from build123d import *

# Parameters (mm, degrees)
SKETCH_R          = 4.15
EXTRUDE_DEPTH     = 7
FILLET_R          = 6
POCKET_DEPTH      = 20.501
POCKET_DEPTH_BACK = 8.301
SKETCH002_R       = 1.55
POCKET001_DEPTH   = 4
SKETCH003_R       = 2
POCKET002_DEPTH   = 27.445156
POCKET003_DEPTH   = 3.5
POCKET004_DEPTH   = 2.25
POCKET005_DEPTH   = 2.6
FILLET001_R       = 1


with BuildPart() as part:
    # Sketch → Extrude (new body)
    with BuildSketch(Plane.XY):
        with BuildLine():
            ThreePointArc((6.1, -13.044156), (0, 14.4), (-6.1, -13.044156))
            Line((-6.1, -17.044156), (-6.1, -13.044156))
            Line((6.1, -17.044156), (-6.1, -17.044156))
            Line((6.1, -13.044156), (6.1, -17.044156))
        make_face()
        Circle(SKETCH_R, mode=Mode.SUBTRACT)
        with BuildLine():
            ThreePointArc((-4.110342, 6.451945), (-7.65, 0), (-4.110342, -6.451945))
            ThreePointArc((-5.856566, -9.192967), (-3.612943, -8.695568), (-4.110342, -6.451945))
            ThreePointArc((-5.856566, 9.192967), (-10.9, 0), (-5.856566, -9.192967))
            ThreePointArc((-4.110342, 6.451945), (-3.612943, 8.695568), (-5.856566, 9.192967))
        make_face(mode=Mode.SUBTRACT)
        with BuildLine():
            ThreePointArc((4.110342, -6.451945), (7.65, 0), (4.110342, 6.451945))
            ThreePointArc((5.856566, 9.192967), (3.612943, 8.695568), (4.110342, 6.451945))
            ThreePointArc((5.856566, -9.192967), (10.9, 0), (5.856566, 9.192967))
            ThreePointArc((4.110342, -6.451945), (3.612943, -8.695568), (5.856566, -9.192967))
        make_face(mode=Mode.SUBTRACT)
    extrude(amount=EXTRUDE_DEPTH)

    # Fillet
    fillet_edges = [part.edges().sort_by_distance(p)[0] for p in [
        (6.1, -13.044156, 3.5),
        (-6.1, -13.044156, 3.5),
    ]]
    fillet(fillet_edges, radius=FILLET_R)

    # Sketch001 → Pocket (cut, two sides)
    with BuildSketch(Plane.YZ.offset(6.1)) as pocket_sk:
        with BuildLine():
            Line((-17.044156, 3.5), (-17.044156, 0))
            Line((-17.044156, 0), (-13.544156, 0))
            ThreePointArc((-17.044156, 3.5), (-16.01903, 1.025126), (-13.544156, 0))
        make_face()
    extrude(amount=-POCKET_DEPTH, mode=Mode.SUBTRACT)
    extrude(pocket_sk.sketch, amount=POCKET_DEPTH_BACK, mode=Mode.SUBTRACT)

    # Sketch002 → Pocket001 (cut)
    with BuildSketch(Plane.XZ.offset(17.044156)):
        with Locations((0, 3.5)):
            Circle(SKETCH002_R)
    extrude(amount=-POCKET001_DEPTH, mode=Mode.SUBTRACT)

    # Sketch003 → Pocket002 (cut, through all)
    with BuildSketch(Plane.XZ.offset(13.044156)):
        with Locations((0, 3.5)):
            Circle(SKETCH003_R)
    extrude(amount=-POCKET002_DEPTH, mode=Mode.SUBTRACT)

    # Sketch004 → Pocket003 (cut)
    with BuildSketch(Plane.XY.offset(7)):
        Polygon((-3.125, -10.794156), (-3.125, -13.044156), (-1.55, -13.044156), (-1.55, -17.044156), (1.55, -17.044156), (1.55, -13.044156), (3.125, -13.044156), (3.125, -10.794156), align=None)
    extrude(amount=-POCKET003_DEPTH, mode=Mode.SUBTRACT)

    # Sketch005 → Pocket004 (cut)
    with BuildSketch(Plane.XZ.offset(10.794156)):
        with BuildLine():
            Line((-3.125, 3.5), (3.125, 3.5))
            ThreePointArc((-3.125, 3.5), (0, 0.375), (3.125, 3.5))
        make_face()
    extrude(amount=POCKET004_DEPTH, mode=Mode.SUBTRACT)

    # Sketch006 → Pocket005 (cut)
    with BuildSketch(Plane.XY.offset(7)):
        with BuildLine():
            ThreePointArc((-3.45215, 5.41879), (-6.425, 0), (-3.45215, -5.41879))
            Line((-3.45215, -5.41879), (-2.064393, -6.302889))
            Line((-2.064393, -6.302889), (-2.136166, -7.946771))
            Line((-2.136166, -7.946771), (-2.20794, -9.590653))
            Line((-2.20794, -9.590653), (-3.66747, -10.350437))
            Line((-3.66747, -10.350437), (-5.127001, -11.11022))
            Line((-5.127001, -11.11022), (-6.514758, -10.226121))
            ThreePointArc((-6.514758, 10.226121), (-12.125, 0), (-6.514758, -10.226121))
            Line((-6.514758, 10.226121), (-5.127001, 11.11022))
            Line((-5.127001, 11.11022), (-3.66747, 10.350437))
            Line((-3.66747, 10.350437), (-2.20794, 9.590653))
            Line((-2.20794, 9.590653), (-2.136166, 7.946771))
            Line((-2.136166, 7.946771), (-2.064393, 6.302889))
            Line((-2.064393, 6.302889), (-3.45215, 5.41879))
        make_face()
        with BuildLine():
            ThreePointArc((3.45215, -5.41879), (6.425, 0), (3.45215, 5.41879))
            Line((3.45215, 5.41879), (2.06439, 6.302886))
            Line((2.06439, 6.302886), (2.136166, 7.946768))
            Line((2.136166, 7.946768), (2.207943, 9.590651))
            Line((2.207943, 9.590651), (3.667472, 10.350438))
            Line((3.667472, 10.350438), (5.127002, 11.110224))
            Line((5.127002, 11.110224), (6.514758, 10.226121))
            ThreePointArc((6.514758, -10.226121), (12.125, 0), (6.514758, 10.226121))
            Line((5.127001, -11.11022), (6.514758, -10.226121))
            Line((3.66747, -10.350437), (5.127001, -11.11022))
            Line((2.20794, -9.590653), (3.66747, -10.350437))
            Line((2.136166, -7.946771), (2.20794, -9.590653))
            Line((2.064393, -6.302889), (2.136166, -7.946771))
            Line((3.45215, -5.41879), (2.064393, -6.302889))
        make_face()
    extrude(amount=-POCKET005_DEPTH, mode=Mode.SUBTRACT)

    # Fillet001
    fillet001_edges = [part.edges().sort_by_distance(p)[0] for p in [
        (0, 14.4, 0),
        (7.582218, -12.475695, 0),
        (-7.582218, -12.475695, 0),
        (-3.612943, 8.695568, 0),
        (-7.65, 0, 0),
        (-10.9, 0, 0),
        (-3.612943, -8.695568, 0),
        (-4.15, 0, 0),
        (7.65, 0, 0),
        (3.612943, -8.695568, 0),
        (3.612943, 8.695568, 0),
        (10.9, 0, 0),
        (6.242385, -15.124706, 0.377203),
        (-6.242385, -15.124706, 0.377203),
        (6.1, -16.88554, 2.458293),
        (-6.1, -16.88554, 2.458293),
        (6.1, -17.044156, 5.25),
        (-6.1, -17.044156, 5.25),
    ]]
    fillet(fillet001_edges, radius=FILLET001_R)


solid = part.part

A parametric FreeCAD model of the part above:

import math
import FreeCAD as App
import Part
import Sketcher

V = App.Vector
Q = App.Units.Quantity


def edges_at(feature, points):
    """Names of the edges that pass closest to the given points."""
    edges = feature.Shape.Edges
    near = lambda p: min(range(len(edges)), key=lambda i: edges[i].distToShape(Part.Vertex(*p))[0])
    return sorted({f"Edge{near(p) + 1}" for p in points})


def add_polygon(sketch, points):
    """Adds a closed chain of lines whose ends are joined by coincident constraints."""
    first, n = sketch.GeometryCount, len(points)
    for a, b in zip(points, points[1:] + points[:1]):
        sketch.addGeometry(Part.LineSegment(App.Vector(*a, 0), App.Vector(*b, 0)), False)
    for i in range(n):
        sketch.addConstraint(Sketcher.Constraint("Coincident", first + i, 2, first + (i + 1) % n, 1))

doc = App.newDocument("Part")
body = doc.addObject("PartDesign::Body", "Body")

# Sketch on XY plane
sketch1 = doc.addObject("Sketcher::SketchObject", "Sketch")
body.addObject(sketch1)
sketch1.AttachmentSupport = (doc.XY_Plane, [""])
sketch1.MapMode = "FlatFace"
sketch1.addGeometry([
    Part.ArcOfCircle(Part.Circle(V(0, 0, 0), V(0, 0, 1), 14.4), math.radians(-65), math.radians(245)),  # 0
    Part.LineSegment(V(-6.1, -13, 0), V(-6.1, -17, 0)),  # 1
    Part.LineSegment(V(-6.1, -17, 0), V(6.1, -17, 0)),  # 2
    Part.LineSegment(V(6.1, -17, 0), V(6.1, -13, 0)),  # 3
    Part.ArcOfCircle(Part.Circle(V(-5, 7.8, 0), V(0, 0, 1), 1.6), math.radians(-57), math.radians(123)),  # 4
    Part.ArcOfCircle(Part.Circle(V(0, 0, 0), V(0, 0, 1), 7.7), math.radians(123), math.radians(237)),  # 5
    Part.ArcOfCircle(Part.Circle(V(-5, -7.8, 0), V(0, 0, 1), 1.6), math.radians(-123), math.radians(57)),  # 6
    Part.ArcOfCircle(Part.Circle(V(0, 0, 0), V(0, 0, 1), 10.9), math.radians(123), math.radians(237)),  # 7
    Part.Circle(V(0, 0, 0), V(0, 0, 1), 4.2),  # 8
    Part.ArcOfCircle(Part.Circle(V(5, -7.8, 0), V(0, 0, 1), 1.6), math.radians(123), math.radians(303)),  # 9
    Part.ArcOfCircle(Part.Circle(V(0, 0, 0), V(0, 0, 1), 7.7), math.radians(-57), math.radians(57)),  # 10
    Part.ArcOfCircle(Part.Circle(V(5, 7.8, 0), V(0, 0, 1), 1.6), math.radians(57), math.radians(237)),  # 11
    Part.ArcOfCircle(Part.Circle(V(0, 0, 0), V(0, 0, 1), 10.9), math.radians(-57), math.radians(57)),  # 12
], False)
sketch1.addConstraint([
    Sketcher.Constraint("Coincident", 0, 2, 1, 1),
    Sketcher.Constraint("Coincident", 1, 2, 2, 1),
    Sketcher.Constraint("Coincident", 2, 2, 3, 1),
    Sketcher.Constraint("Coincident", 3, 2, 0, 1),
    Sketcher.Constraint("Tangent", 4, 1, 5, 1),
    Sketcher.Constraint("Tangent", 5, 2, 6, 2),
    Sketcher.Constraint("Tangent", 6, 1, 7, 2),
    Sketcher.Constraint("Tangent", 7, 1, 4, 2),
    Sketcher.Constraint("Tangent", 9, 1, 10, 1),
    Sketcher.Constraint("Tangent", 10, 2, 11, 2),
    Sketcher.Constraint("Tangent", 11, 1, 12, 2),
    Sketcher.Constraint("Tangent", 12, 1, 9, 2),
    Sketcher.Constraint("Vertical", 1),
    Sketcher.Constraint("Horizontal", 2),
    Sketcher.Constraint("Vertical", 3),
    Sketcher.Constraint("Coincident", 0, 3, -1, 1),
    Sketcher.Constraint("Coincident", 5, 3, -1, 1),
    Sketcher.Constraint("Coincident", 7, 3, -1, 1),
    Sketcher.Constraint("Coincident", 8, 3, -1, 1),
    Sketcher.Constraint("Coincident", 10, 3, -1, 1),
    Sketcher.Constraint("Coincident", 12, 3, -1, 1),
    Sketcher.Constraint("Equal", 6, 9),
    Sketcher.Constraint("Equal", 5, 10),
    Sketcher.Constraint("Horizontal", 6, 3, 9, 3),
    Sketcher.Constraint("Horizontal", 4, 3, 11, 3),
    Sketcher.Constraint("Horizontal", 0, 2, 3, 2),
    Sketcher.Constraint("Vertical", 4, 3, 6, 3),
    Sketcher.Constraint("Diameter", 8, Q("8.3 mm")),
    Sketcher.Constraint("Radius", 0, Q("14.4 mm")),
    Sketcher.Constraint("Radius", 7, Q("10.900001 mm")),
    Sketcher.Constraint("DistanceY", 1, 2, 1, 1, Q("4 mm")),
    Sketcher.Constraint("Radius", 5, Q("7.650001 mm")),
    Sketcher.Constraint("DistanceX", 2, 1, 2, 2, Q("12.2 mm")),
    Sketcher.Constraint("DistanceY", 0, 2, 6, 3, Q("5.2217 mm")),
])
pad1 = doc.addObject("PartDesign::Pad", "Pad")
body.addObject(pad1)
pad1.Profile = sketch1
pad1.Length = 7
doc.recompute()

fillet = doc.addObject("PartDesign::Fillet", "Fillet")
body.addObject(fillet)
fillet.Base = (pad1, edges_at(pad1, [(6.1, -13.044, 3.5), (-6.1, -13.044, 3.5)]))
fillet.Radius = 6

# Sketch on YZ plane
sketch2 = doc.addObject("Sketcher::SketchObject", "Sketch001")
body.addObject(sketch2)
sketch2.AttachmentSupport = (doc.YZ_Plane, [""])
sketch2.MapMode = "FlatFace"
sketch2.AttachmentOffset = App.Placement(V(0, 0, 6.1), App.Rotation())
sketch2.addGeometry([
    Part.LineSegment(V(-17, 3.5, 0), V(-17, 0, 0)),
    Part.LineSegment(V(-17, 0, 0), V(-13.5, 0, 0)),
    Part.ArcOfCircle(Part.Circle(V(-13.5, 3.5, 0), V(0, 0, 1), 3.5), math.radians(180), math.radians(270)),
], False)
sketch2.addConstraint([
    Sketcher.Constraint("Coincident", 0, 2, 1, 1),
    Sketcher.Constraint("Tangent", 1, 2, 2, 2),
    Sketcher.Constraint("Tangent", 2, 1, 0, 1),
    Sketcher.Constraint("Vertical", 0),
    Sketcher.Constraint("Horizontal", 1),
    Sketcher.Constraint("PointOnObject", 0, 2, -1),
    Sketcher.Constraint("Radius", 2, Q("3.499999 mm")),
    Sketcher.Constraint("DistanceX", 2, 3, -1, 1, Q("13.544157 mm")),
])
pocket1 = doc.addObject("PartDesign::Pocket", "Pocket")
body.addObject(pocket1)
pocket1.Profile = sketch2
pocket1.Type = "ThroughAll"
pocket1.Midplane = True

# Sketch on XZ plane
sketch3 = doc.addObject("Sketcher::SketchObject", "Sketch002")
body.addObject(sketch3)
sketch3.AttachmentSupport = (doc.XZ_Plane, [""])
sketch3.MapMode = "FlatFace"
sketch3.AttachmentOffset = App.Placement(V(0, 0, 17.044156), App.Rotation())
sketch3.addGeometry(Part.Circle(V(0, 3.5, 0), V(0, 0, 1), 1.6), False)
sketch3.addConstraint([
    Sketcher.Constraint("PointOnObject", 0, 3, -2),
    Sketcher.Constraint("Diameter", 0, Q("3.1 mm")),
    Sketcher.Constraint("DistanceY", -1, 1, 0, 3, Q("3.5 mm")),
])
pocket2 = doc.addObject("PartDesign::Pocket", "Pocket001")
body.addObject(pocket2)
pocket2.Profile = sketch3
pocket2.Length = 4

# Sketch on XZ plane
sketch4 = doc.addObject("Sketcher::SketchObject", "Sketch003")
body.addObject(sketch4)
sketch4.AttachmentSupport = (doc.XZ_Plane, [""])
sketch4.MapMode = "FlatFace"
sketch4.AttachmentOffset = App.Placement(V(0, 0, 13.044156), App.Rotation())
sketch4.addGeometry(Part.Circle(V(0, 3.5, 0), V(0, 0, 1), 2), False)
sketch4.addConstraint([
    Sketcher.Constraint("PointOnObject", 0, 3, -2),
    Sketcher.Constraint("Diameter", 0, Q("4 mm")),
    Sketcher.Constraint("DistanceY", -1, 1, 0, 3, Q("3.5 mm")),
])
pocket3 = doc.addObject("PartDesign::Pocket", "Pocket002")
body.addObject(pocket3)
pocket3.Profile = sketch4
pocket3.Type = "ThroughAll"

# Sketch on XY plane
sketch5 = doc.addObject("Sketcher::SketchObject", "Sketch004")
body.addObject(sketch5)
sketch5.AttachmentSupport = (doc.XY_Plane, [""])
sketch5.MapMode = "FlatFace"
sketch5.AttachmentOffset = App.Placement(V(0, 0, 7), App.Rotation())
add_polygon(sketch5, [(-3.1, -10.8), (-3.1, -13), (-1.6, -13), (-1.6, -17), (1.6, -17), (1.6, -13), (3.1, -13), (3.1, -10.8)])  # lines 0-7
sketch5.addConstraint([
    Sketcher.Constraint("Vertical", 0),
    Sketcher.Constraint("Horizontal", 1),
    Sketcher.Constraint("Vertical", 2),
    Sketcher.Constraint("Horizontal", 3),
    Sketcher.Constraint("Vertical", 4),
    Sketcher.Constraint("Horizontal", 5),
    Sketcher.Constraint("Vertical", 6),
    Sketcher.Constraint("Horizontal", 7),
    Sketcher.Constraint("Symmetric", 1, 2, 4, 2, -2),
    Sketcher.Constraint("Equal", 1, 5),
    Sketcher.Constraint("DistanceY", 2, 2, 2, 1, Q("4 mm")),
    Sketcher.Constraint("DistanceX", 3, 1, 3, 2, Q("3.1 mm")),
    Sketcher.Constraint("DistanceX", 7, 2, 7, 1, Q("6.25 mm")),
    Sketcher.Constraint("DistanceY", 0, 2, 0, 1, Q("2.25 mm")),
    Sketcher.Constraint("DistanceY", 0, 2, -1, 1, Q("13.044156 mm")),
])
pocket4 = doc.addObject("PartDesign::Pocket", "Pocket003")
body.addObject(pocket4)
pocket4.Profile = sketch5
pocket4.Length = 3.5

# Sketch on XZ plane
sketch6 = doc.addObject("Sketcher::SketchObject", "Sketch005")
body.addObject(sketch6)
sketch6.AttachmentSupport = (doc.XZ_Plane, [""])
sketch6.MapMode = "FlatFace"
sketch6.AttachmentOffset = App.Placement(V(0, 0, 10.794156), App.Rotation())
sketch6.addGeometry([
    Part.LineSegment(V(3.1, 3.5, 0), V(-3.1, 3.5, 0)),
    Part.ArcOfCircle(Part.Circle(V(0, 3.5, 0), V(0, 0, 1), 3.1), math.radians(180), math.radians(360)),
], False)
sketch6.addConstraint([
    Sketcher.Constraint("Coincident", 0, 1, 1, 2),
    Sketcher.Constraint("Coincident", 1, 1, 0, 2),
    Sketcher.Constraint("Horizontal", 0),
    Sketcher.Constraint("PointOnObject", 1, 3, -2),
    Sketcher.Constraint("Horizontal", 1, 3, 0, 1),
    Sketcher.Constraint("Radius", 1, Q("3.125 mm")),
    Sketcher.Constraint("DistanceY", -1, 1, 1, 3, Q("3.5 mm")),
])
pocket5 = doc.addObject("PartDesign::Pocket", "Pocket004")
body.addObject(pocket5)
pocket5.Profile = sketch6
pocket5.Length = 2.25
pocket5.Reversed = True

# Sketch on XY plane
sketch7 = doc.addObject("Sketcher::SketchObject", "Sketch006")
body.addObject(sketch7)
sketch7.AttachmentSupport = (doc.XY_Plane, [""])
sketch7.MapMode = "FlatFace"
sketch7.AttachmentOffset = App.Placement(V(0, 0, 7), App.Rotation())
sketch7.addGeometry([
    Part.ArcOfCircle(Part.Circle(V(0, 0, 0), V(0, 0, 1), 6.4), math.radians(122), math.radians(238)),  # 0
    Part.LineSegment(V(-3.5, 5.4, 0), V(-2.1, 6.3, 0)),  # 1
    Part.LineSegment(V(-2.1, 6.3, 0), V(-2.1, 7.9, 0)),  # 2
    Part.LineSegment(V(-2.1, 7.9, 0), V(-2.2, 9.6, 0)),  # 3
    Part.LineSegment(V(-2.2, 9.6, 0), V(-3.7, 10.4, 0)),  # 4
    Part.LineSegment(V(-3.7, 10.4, 0), V(-5.1, 11.1, 0)),  # 5
    Part.LineSegment(V(-5.1, 11.1, 0), V(-6.5, 10.2, 0)),  # 6
    Part.ArcOfCircle(Part.Circle(V(0, 0, 0), V(0, 0, 1), 12.1), math.radians(123), math.radians(237)),  # 7
    Part.LineSegment(V(-6.5, -10.2, 0), V(-5.1, -11.1, 0)),  # 8
    Part.LineSegment(V(-5.1, -11.1, 0), V(-3.7, -10.4, 0)),  # 9
    Part.LineSegment(V(-3.7, -10.4, 0), V(-2.2, -9.6, 0)),  # 10
    Part.LineSegment(V(-2.2, -9.6, 0), V(-2.1, -7.9, 0)),  # 11
    Part.LineSegment(V(-2.1, -7.9, 0), V(-2.1, -6.3, 0)),  # 12
    Part.LineSegment(V(-2.1, -6.3, 0), V(-3.5, -5.4, 0)),  # 13
    Part.ArcOfCircle(Part.Circle(V(0, 0, 0), V(0, 0, 1), 6.4), math.radians(-58), math.radians(58)),  # 14
    Part.LineSegment(V(3.5, -5.4, 0), V(2.1, -6.3, 0)),  # 15
    Part.LineSegment(V(2.1, -6.3, 0), V(2.1, -7.9, 0)),  # 16
    Part.LineSegment(V(2.1, -7.9, 0), V(2.2, -9.6, 0)),  # 17
    Part.LineSegment(V(2.2, -9.6, 0), V(3.7, -10.4, 0)),  # 18
    Part.LineSegment(V(3.7, -10.4, 0), V(5.1, -11.1, 0)),  # 19
    Part.LineSegment(V(5.1, -11.1, 0), V(6.5, -10.2, 0)),  # 20
    Part.ArcOfCircle(Part.Circle(V(0, 0, 0), V(0, 0, 1), 12.1), math.radians(-57), math.radians(57)),  # 21
    Part.LineSegment(V(6.5, 10.2, 0), V(5.1, 11.1, 0)),  # 22
    Part.LineSegment(V(5.1, 11.1, 0), V(3.7, 10.4, 0)),  # 23
    Part.LineSegment(V(3.7, 10.4, 0), V(2.2, 9.6, 0)),  # 24
    Part.LineSegment(V(2.2, 9.6, 0), V(2.1, 7.9, 0)),  # 25
    Part.LineSegment(V(2.1, 7.9, 0), V(2.1, 6.3, 0)),  # 26
    Part.LineSegment(V(2.1, 6.3, 0), V(3.5, 5.4, 0)),  # 27
], False)
sketch7.addConstraint([
    Sketcher.Constraint("Tangent", 0, 1, 1, 1),
    Sketcher.Constraint("Coincident", 1, 2, 2, 1),
    Sketcher.Constraint("Coincident", 2, 2, 3, 1),
    Sketcher.Constraint("Coincident", 3, 2, 4, 1),
    Sketcher.Constraint("Coincident", 4, 2, 5, 1),
    Sketcher.Constraint("Coincident", 5, 2, 6, 1),
    Sketcher.Constraint("Tangent", 6, 2, 7, 1),
    Sketcher.Constraint("Tangent", 7, 2, 8, 1),
    Sketcher.Constraint("Coincident", 8, 2, 9, 1),
    Sketcher.Constraint("Coincident", 9, 2, 10, 1),
    Sketcher.Constraint("Coincident", 10, 2, 11, 1),
    Sketcher.Constraint("Coincident", 11, 2, 12, 1),
    Sketcher.Constraint("Coincident", 12, 2, 13, 1),
    Sketcher.Constraint("Tangent", 13, 2, 0, 2),
    Sketcher.Constraint("Tangent", 14, 1, 15, 1),
    Sketcher.Constraint("Coincident", 15, 2, 16, 1),
    Sketcher.Constraint("Coincident", 16, 2, 17, 1),
    Sketcher.Constraint("Coincident", 17, 2, 18, 1),
    Sketcher.Constraint("Coincident", 18, 2, 19, 1),
    Sketcher.Constraint("Coincident", 19, 2, 20, 1),
    Sketcher.Constraint("Tangent", 20, 2, 21, 1),
    Sketcher.Constraint("Coincident", 21, 2, 22, 1),
    Sketcher.Constraint("Coincident", 22, 2, 23, 1),
    Sketcher.Constraint("Coincident", 23, 2, 24, 1),
    Sketcher.Constraint("Coincident", 24, 2, 25, 1),
    Sketcher.Constraint("Coincident", 25, 2, 26, 1),
    Sketcher.Constraint("Coincident", 26, 2, 27, 1),
    Sketcher.Constraint("Coincident", 27, 2, 14, 2),
    Sketcher.Constraint("Coincident", 0, 3, -1, 1),
    Sketcher.Constraint("Coincident", 7, 3, -1, 1),
    Sketcher.Constraint("Coincident", 14, 3, -1, 1),
    Sketcher.Constraint("Coincident", 21, 3, -1, 1),
    Sketcher.Constraint("Equal", 0, 14),
    Sketcher.Constraint("Equal", 7, 21),
    Sketcher.Constraint("Symmetric", 1, 2, 15, 2, -1, 1),
    Sketcher.Constraint("Symmetric", 2, 2, 16, 2, -1, 1),
    Sketcher.Constraint("Symmetric", 3, 2, 17, 2, -1, 1),
    Sketcher.Constraint("Symmetric", 4, 2, 18, 2, -1, 1),
    Sketcher.Constraint("Symmetric", 5, 2, 19, 2, -1, 1),
    Sketcher.Constraint("Symmetric", 8, 2, 22, 2, -1, 1),
    Sketcher.Constraint("Symmetric", 9, 2, 23, 2, -1, 1),
    Sketcher.Constraint("Symmetric", 10, 2, 24, 2, -1, 1),
    Sketcher.Constraint("Symmetric", 11, 2, 25, 2, -1, 1),
    Sketcher.Constraint("Symmetric", 12, 2, 26, 2, -1, 1),
    Sketcher.Constraint("Symmetric", 12, 2, 15, 2, -2),
    Sketcher.Constraint("Symmetric", 11, 2, 16, 2, -2),
    Sketcher.Constraint("Symmetric", 10, 2, 17, 2, -2),
    Sketcher.Constraint("Symmetric", 9, 2, 18, 2, -2),
    Sketcher.Constraint("Symmetric", 8, 2, 19, 2, -2),
    Sketcher.Constraint("Parallel", 2, 3),
    Sketcher.Constraint("Parallel", 4, 5),
    Sketcher.Constraint("Parallel", 1, 6),
    Sketcher.Constraint("Horizontal", 6, 2, 21, 2),
    Sketcher.Constraint("Horizontal", 0, 1, 27, 2),
    Sketcher.Constraint("Equal", 1, 2),
    Sketcher.Constraint("Equal", 2, 3),
    Sketcher.Constraint("Equal", 3, 4),
    Sketcher.Constraint("Equal", 4, 5),
    Sketcher.Constraint("Equal", 5, 6),
    Sketcher.Constraint("Angle", 1, Q("32.500008 deg")),
    Sketcher.Constraint("Angle", 2, Q("92.499985 deg")),
    Sketcher.Constraint("Radius", 0, Q("6.425 mm")),
    Sketcher.Constraint("Radius", 7, Q("12.125 mm")),
])
pocket6 = doc.addObject("PartDesign::Pocket", "Pocket005")
body.addObject(pocket6)
pocket6.Profile = sketch7
pocket6.Length = 2.6
doc.recompute()

fillet2 = doc.addObject("PartDesign::Fillet", "Fillet001")
body.addObject(fillet2)
fillet2.Base = (pocket6, edges_at(pocket6, [
    (0, 14.4, 0),
    (7.582, -12.476, 0),
    (-7.582, -12.476, 0),
    (-3.613, 8.696, 0),
    (-7.65, 0, 0),
    (-10.9, 0, 0),
    (-3.613, -8.696, 0),
    (-4.15, 0, 0),
    (7.65, 0, 0),
    (3.613, -8.696, 0),
    (3.613, 8.696, 0),
    (10.9, 0, 0),
    (6.242, -15.125, 0.377),
    (-6.242, -15.125, 0.377),
    (6.1, -16.886, 2.458),
    (-6.1, -16.886, 2.458),
    (6.1, -17.044, 5.25),
    (-6.1, -17.044, 5.25),
]))
fillet2.Radius = 1

doc.recompute()
